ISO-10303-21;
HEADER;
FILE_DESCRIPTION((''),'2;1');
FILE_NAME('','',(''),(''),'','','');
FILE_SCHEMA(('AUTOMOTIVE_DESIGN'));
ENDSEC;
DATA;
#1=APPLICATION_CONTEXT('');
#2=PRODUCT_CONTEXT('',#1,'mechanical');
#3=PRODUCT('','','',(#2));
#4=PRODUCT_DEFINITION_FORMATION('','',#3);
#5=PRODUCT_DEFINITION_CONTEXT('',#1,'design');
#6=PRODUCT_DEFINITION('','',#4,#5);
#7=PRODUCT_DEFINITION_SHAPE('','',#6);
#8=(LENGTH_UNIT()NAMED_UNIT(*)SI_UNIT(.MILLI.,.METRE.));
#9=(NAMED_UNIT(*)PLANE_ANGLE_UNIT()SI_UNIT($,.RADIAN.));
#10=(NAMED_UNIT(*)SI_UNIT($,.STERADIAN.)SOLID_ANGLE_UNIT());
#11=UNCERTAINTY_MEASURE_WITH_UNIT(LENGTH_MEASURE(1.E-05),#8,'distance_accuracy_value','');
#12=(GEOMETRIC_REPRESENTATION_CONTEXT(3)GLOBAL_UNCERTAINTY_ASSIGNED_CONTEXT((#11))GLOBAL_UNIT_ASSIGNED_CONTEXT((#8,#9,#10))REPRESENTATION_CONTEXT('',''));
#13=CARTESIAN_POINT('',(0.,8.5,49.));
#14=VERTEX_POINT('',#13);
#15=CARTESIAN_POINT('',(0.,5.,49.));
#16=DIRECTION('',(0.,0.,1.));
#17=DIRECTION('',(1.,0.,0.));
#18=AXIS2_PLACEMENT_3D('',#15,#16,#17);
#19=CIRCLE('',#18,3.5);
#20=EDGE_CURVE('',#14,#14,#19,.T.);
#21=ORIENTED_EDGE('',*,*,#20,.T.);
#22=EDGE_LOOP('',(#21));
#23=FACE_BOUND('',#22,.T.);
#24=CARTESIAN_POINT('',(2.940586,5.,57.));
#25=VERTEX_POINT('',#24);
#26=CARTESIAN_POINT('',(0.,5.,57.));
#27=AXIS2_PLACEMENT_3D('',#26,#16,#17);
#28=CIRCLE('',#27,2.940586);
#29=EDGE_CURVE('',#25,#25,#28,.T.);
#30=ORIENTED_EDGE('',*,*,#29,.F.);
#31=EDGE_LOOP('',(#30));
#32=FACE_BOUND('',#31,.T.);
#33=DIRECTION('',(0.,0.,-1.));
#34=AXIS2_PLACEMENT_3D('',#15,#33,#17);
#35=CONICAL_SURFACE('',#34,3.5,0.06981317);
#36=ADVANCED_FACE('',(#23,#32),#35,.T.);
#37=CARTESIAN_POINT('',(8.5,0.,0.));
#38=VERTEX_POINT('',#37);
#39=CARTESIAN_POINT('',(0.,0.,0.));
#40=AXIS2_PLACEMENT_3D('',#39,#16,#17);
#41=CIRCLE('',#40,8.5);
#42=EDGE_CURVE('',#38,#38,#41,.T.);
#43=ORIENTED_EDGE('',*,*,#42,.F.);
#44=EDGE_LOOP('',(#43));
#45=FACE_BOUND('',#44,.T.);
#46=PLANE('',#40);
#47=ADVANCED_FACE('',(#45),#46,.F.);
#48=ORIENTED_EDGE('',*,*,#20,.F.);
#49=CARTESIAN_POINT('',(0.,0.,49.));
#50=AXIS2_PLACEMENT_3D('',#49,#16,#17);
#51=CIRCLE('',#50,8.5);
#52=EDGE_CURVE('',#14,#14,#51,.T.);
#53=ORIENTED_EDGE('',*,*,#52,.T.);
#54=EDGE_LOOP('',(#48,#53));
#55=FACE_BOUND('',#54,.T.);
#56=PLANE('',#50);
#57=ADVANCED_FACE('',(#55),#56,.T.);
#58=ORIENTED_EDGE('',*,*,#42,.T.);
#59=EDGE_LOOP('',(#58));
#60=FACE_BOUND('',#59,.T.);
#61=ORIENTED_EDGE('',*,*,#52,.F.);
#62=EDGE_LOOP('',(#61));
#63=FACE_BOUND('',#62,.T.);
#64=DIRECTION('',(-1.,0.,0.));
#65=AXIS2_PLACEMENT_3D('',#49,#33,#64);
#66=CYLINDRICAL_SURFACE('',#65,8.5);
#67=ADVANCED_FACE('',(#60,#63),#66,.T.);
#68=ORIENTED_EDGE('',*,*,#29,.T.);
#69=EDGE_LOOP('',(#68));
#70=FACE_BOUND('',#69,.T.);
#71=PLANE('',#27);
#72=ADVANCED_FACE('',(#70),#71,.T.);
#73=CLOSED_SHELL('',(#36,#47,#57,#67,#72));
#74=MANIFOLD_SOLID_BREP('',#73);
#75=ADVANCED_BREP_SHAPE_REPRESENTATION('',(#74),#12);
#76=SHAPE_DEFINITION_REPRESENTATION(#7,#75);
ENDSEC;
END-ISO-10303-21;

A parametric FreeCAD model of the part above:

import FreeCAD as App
import Part
import Sketcher
Q = App.Units.Quantity

doc = App.newDocument("Part")
body = doc.addObject("PartDesign::Body", "Body")

sketch1 = body.newObject("Sketcher::SketchObject", "Sketch")
sketch1.AttachmentSupport = (doc.getObject("XY_Plane"), [""])
sketch1.MapMode = "FlatFace"
sketch1.addGeometry(Part.Circle(App.Vector(0, 0, 0), App.Vector(0, 0, 1), 8), False)
sketch1.addConstraint([
    Sketcher.Constraint("Coincident", 0, 3, -1, 1),
    Sketcher.Constraint("Diameter", 0, Q("17 mm")),
])
pad1 = body.newObject("PartDesign::Pad", "Pad")
pad1.Profile = sketch1
pad1.Length = 49

sketch2 = body.newObject("Sketcher::SketchObject", "Sketch001")
sketch2.AttachmentSupport = (doc.getObject("XY_Plane"), [""])
sketch2.MapMode = "FlatFace"
sketch2.AttachmentOffset = App.Placement(App.Vector(0, 0, 49), App.Rotation())
sketch2.addGeometry(Part.Circle(App.Vector(0, 5, 0), App.Vector(0, 0, 1), 3.5), False)
sketch2.addConstraint([
    Sketcher.Constraint("PointOnObject", 0, 3, -2),
    Sketcher.Constraint("Diameter", 0, Q("7 mm")),
    Sketcher.Constraint("DistanceY", -1, 1, 0, 3, Q("5 mm")),
])
pad2 = body.newObject("PartDesign::Pad", "Pad001")
pad2.Profile = sketch2
pad2.Length = 8
pad2.TaperAngle = -4

doc.recompute()
